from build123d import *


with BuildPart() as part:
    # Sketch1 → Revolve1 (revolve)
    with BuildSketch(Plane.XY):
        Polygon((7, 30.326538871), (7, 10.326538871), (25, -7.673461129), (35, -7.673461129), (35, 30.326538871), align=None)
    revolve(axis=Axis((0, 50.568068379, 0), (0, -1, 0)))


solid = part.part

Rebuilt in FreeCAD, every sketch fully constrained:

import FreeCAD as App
import Part
import Sketcher
from FreeCAD import Vector

doc = App.newDocument("Part")
body = doc.addObject("PartDesign::Body", "Body")

# Sketch on XY plane
sketch1 = body.newObject("Sketcher::SketchObject", "Sketch")
sketch1.AttachmentSupport = (doc.getObject("XY_Plane"), [""])
sketch1.MapMode = "FlatFace"
sketch1.addGeometry([
    Part.LineSegment(Vector(7, 30, 0), Vector(7, 10, 0)),  # 0
    Part.LineSegment(Vector(7, 10, 0), Vector(25, -8, 0)),  # 1
    Part.LineSegment(Vector(25, -8, 0), Vector(35, -8, 0)),  # 2
    Part.LineSegment(Vector(35, -8, 0), Vector(35, 30, 0)),  # 3
    Part.LineSegment(Vector(35, 30, 0), Vector(7, 30, 0)),  # 4
], False)
sketch1.addConstraint([
    Sketcher.Constraint("Coincident", 0, 2, 1, 1),
    Sketcher.Constraint("Coincident", 1, 2, 2, 1),
    Sketcher.Constraint("Coincident", 2, 2, 3, 1),
    Sketcher.Constraint("Coincident", 3, 2, 4, 1),
    Sketcher.Constraint("Coincident", 4, 2, 0, 1),
    Sketcher.Constraint("Vertical", 0),
    Sketcher.Constraint("Horizontal", 2),
    Sketcher.Constraint("Vertical", 3),
    Sketcher.Constraint("Horizontal", 4),
    Sketcher.Constraint("DistanceX", 2, 1, 2, 2, 10.0),
    Sketcher.Constraint("DistanceX", 4, 2, 4, 1, 28.0),
    Sketcher.Constraint("DistanceY", 0, 2, 0, 1, 20.0),
    Sketcher.Constraint("DistanceY", 3, 1, 3, 2, 38.0),
    Sketcher.Constraint("DistanceX", -1, 1, 0, 2, 7.0),
    Sketcher.Constraint("DistanceY", -1, 1, 0, 2, 10.326539),
])
revolution = body.newObject("PartDesign::Revolution", "Revolution")
revolution.Profile = sketch1
revolution.ReferenceAxis = (sketch1, ["V_Axis"])
revolution.Angle = 360

doc.recompute()
